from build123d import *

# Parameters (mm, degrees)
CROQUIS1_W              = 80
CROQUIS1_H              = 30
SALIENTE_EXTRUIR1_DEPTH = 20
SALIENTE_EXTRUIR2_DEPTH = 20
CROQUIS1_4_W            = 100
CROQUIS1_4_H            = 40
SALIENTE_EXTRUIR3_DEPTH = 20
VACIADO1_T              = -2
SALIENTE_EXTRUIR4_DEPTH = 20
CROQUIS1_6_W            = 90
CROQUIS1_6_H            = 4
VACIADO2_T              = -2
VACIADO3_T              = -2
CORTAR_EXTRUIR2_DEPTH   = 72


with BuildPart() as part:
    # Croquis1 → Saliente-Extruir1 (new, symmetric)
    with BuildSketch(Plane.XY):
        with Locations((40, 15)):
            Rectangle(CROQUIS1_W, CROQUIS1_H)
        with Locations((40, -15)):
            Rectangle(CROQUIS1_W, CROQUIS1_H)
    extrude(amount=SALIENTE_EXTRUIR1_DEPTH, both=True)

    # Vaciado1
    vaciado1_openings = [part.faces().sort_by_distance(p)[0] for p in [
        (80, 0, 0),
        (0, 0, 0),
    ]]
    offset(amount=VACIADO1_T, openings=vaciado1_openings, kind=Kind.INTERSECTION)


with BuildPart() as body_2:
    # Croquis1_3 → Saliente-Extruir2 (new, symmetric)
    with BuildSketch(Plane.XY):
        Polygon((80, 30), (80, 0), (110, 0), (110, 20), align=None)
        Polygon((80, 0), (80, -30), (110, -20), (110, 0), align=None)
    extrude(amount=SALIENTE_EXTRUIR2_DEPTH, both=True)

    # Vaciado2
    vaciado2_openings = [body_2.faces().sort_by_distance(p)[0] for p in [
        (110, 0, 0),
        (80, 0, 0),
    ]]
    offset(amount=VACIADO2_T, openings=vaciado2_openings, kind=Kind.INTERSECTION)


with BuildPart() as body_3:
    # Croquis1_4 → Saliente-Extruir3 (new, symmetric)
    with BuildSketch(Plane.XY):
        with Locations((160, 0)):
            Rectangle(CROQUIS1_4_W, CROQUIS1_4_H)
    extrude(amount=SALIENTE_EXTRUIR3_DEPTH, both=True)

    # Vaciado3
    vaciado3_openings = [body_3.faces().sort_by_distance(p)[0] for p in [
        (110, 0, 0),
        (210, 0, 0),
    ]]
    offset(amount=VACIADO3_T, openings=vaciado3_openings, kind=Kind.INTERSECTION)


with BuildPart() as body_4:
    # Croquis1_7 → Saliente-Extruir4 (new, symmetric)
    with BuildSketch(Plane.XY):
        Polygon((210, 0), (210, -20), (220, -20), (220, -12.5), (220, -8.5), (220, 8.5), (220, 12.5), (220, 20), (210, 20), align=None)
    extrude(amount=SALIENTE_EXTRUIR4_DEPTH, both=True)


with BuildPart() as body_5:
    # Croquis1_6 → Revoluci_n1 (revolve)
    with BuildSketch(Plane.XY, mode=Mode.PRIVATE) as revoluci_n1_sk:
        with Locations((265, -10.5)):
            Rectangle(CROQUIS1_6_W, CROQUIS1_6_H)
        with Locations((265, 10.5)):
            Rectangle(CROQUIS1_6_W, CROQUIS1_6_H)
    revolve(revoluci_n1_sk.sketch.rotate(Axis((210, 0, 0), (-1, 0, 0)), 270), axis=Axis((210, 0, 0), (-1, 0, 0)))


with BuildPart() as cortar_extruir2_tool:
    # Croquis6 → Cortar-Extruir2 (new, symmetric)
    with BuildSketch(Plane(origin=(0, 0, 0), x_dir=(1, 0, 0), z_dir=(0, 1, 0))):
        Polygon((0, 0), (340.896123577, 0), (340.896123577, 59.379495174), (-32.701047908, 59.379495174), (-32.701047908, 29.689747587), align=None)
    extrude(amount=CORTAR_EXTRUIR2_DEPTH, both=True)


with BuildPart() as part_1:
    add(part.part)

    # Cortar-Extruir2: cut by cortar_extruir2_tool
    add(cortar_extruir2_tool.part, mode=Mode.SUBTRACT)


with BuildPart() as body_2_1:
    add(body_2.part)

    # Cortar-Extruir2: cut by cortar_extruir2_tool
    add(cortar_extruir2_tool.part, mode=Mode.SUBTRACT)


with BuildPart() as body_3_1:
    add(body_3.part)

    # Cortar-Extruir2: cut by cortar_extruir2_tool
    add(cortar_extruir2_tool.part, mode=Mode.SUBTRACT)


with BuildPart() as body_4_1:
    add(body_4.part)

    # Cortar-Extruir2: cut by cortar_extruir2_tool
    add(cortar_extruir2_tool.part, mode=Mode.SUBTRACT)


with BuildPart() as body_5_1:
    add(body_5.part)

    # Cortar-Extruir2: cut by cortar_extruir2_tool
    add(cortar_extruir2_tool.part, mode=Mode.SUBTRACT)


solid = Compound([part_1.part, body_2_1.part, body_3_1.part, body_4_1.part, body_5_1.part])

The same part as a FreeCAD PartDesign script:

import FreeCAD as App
import Part
import Sketcher
from FreeCAD import Vector
Q = App.Units.Quantity


def faces_at(feature, points):
    """Names of the faces that lie closest to the given points."""
    faces = feature.Shape.Faces
    near = lambda p: min(range(len(faces)), key=lambda i: faces[i].distToShape(Part.Vertex(*p))[0])
    return sorted({f"Face{near(p) + 1}" for p in points})

doc = App.newDocument("Part")
body = doc.addObject("PartDesign::Body", "Body")

# Sketch on XY plane
sketch1 = body.newObject("Sketcher::SketchObject", "Sketch")
sketch1.AttachmentSupport = (doc.getObject("XY_Plane"), [""])
sketch1.MapMode = "FlatFace"
sketch1.addGeometry([
    Part.LineSegment(Vector(0, 30, 0), Vector(0, -30, 0)),
    Part.LineSegment(Vector(0, -30, 0), Vector(80, -30, 0)),
    Part.LineSegment(Vector(80, -30, 0), Vector(80, 30, 0)),
    Part.LineSegment(Vector(80, 30, 0), Vector(0, 30, 0)),
], False)
sketch1.addConstraint([
    Sketcher.Constraint("Coincident", 0, 2, 1, 1),
    Sketcher.Constraint("Coincident", 1, 2, 2, 1),
    Sketcher.Constraint("Coincident", 2, 2, 3, 1),
    Sketcher.Constraint("Coincident", 3, 2, 0, 1),
    Sketcher.Constraint("Vertical", 0),
    Sketcher.Constraint("Horizontal", 1),
    Sketcher.Constraint("Vertical", 2),
    Sketcher.Constraint("Horizontal", 3),
    Sketcher.Constraint("Symmetric", 0, 2, 3, 2, -1, 1),
    Sketcher.Constraint("DistanceX", 1, 1, 1, 2, Q("80 mm")),
    Sketcher.Constraint("DistanceY", 0, 2, 0, 1, Q("60 mm")),
])
pad1 = body.newObject("PartDesign::Pad", "Pad")
pad1.Profile = sketch1
pad1.Length = 40
pad1.Midplane = True
doc.recompute()

thickness = body.newObject("PartDesign::Thickness", "Thickness")
thickness.Base = (pad1, faces_at(pad1, [(80, 0, 0), (0, 0, 0)]))
thickness.Value = 2
thickness.Reversed = True
thickness.Join = "Intersection"
body2 = doc.addObject("PartDesign::Body", "Body001")

# Sketch on XY plane
sketch2 = body2.newObject("Sketcher::SketchObject", "Sketch001")
sketch2.AttachmentSupport = (doc.getObject("XY_Plane001"), [""])
sketch2.MapMode = "FlatFace"
sketch2.addGeometry([
    Part.LineSegment(Vector(80, 30, 0), Vector(80, -30, 0)),
    Part.LineSegment(Vector(80, -30, 0), Vector(110, -20, 0)),
    Part.LineSegment(Vector(110, -20, 0), Vector(110, 20, 0)),
    Part.LineSegment(Vector(110, 20, 0), Vector(80, 30, 0)),
], False)
sketch2.addConstraint([
    Sketcher.Constraint("Coincident", 0, 2, 1, 1),
    Sketcher.Constraint("Coincident", 1, 2, 2, 1),
    Sketcher.Constraint("Coincident", 2, 2, 3, 1),
    Sketcher.Constraint("Coincident", 3, 2, 0, 1),
    Sketcher.Constraint("Vertical", 0),
    Sketcher.Constraint("Vertical", 2),
    Sketcher.Constraint("Equal", 1, 3),
    Sketcher.Constraint("DistanceY", 0, 2, 0, 1, Q("60 mm")),
    Sketcher.Constraint("DistanceY", 2, 1, 2, 2, Q("40 mm")),
    Sketcher.Constraint("DistanceX", -1, 1, 0, 2, Q("80 mm")),
    Sketcher.Constraint("DistanceY", 0, 2, -1, 1, Q("30 mm")),
    Sketcher.Constraint("DistanceX", -1, 1, 1, 2, Q("110 mm")),
])
pad2 = body2.newObject("PartDesign::Pad", "Pad001")
pad2.Profile = sketch2
pad2.Length = 40
pad2.Midplane = True
doc.recompute()

thickness2 = body2.newObject("PartDesign::Thickness", "Thickness001")
thickness2.Base = (pad2, faces_at(pad2, [(110, 0, 0), (80, 0, 0)]))
thickness2.Value = 2
thickness2.Reversed = True
thickness2.Join = "Intersection"
body3 = doc.addObject("PartDesign::Body", "Body002")

# Sketch on XY plane
sketch3 = body3.newObject("Sketcher::SketchObject", "Sketch002")
sketch3.AttachmentSupport = (doc.getObject("XY_Plane002"), [""])
sketch3.MapMode = "FlatFace"
sketch3.addGeometry([
    Part.LineSegment(Vector(110, 20, 0), Vector(110, -20, 0)),
    Part.LineSegment(Vector(110, -20, 0), Vector(210, -20, 0)),
    Part.LineSegment(Vector(210, -20, 0), Vector(210, 20, 0)),
    Part.LineSegment(Vector(210, 20, 0), Vector(110, 20, 0)),
], False)
sketch3.addConstraint([
    Sketcher.Constraint("Coincident", 0, 2, 1, 1),
    Sketcher.Constraint("Coincident", 1, 2, 2, 1),
    Sketcher.Constraint("Coincident", 2, 2, 3, 1),
    Sketcher.Constraint("Coincident", 3, 2, 0, 1),
    Sketcher.Constraint("Vertical", 0),
    Sketcher.Constraint("Horizontal", 1),
    Sketcher.Constraint("Vertical", 2),
    Sketcher.Constraint("Horizontal", 3),
    Sketcher.Constraint("DistanceX", 1, 1, 1, 2, Q("100 mm")),
    Sketcher.Constraint("DistanceY", 0, 2, 0, 1, Q("40 mm")),
    Sketcher.Constraint("DistanceX", -1, 1, 0, 2, Q("110 mm")),
    Sketcher.Constraint("DistanceY", 0, 2, -1, 1, Q("20 mm")),
])
pad3 = body3.newObject("PartDesign::Pad", "Pad002")
pad3.Profile = sketch3
pad3.Length = 40
pad3.Midplane = True
doc.recompute()

thickness3 = body3.newObject("PartDesign::Thickness", "Thickness002")
thickness3.Base = (pad3, faces_at(pad3, [(110, 0, 0), (210, 0, 0)]))
thickness3.Value = 2
thickness3.Reversed = True
thickness3.Join = "Intersection"
body4 = doc.addObject("PartDesign::Body", "Body003")

# Sketch on XY plane
sketch4 = body4.newObject("Sketcher::SketchObject", "Sketch003")
sketch4.AttachmentSupport = (doc.getObject("XY_Plane003"), [""])
sketch4.MapMode = "FlatFace"
sketch4.addGeometry([
    Part.LineSegment(Vector(210, -20, 0), Vector(220, -20, 0)),
    Part.LineSegment(Vector(220, -20, 0), Vector(220, 20, 0)),
    Part.LineSegment(Vector(220, 20, 0), Vector(210, 20, 0)),
    Part.LineSegment(Vector(210, 20, 0), Vector(210, -20, 0)),
], False)
sketch4.addConstraint([
    Sketcher.Constraint("Coincident", 0, 2, 1, 1),
    Sketcher.Constraint("Coincident", 1, 2, 2, 1),
    Sketcher.Constraint("Coincident", 2, 2, 3, 1),
    Sketcher.Constraint("Coincident", 3, 2, 0, 1),
    Sketcher.Constraint("Horizontal", 0),
    Sketcher.Constraint("Vertical", 1),
    Sketcher.Constraint("Horizontal", 2),
    Sketcher.Constraint("Vertical", 3),
    Sketcher.Constraint("DistanceX", 0, 1, 0, 2, Q("10 mm")),
    Sketcher.Constraint("DistanceY", 1, 1, 1, 2, Q("40 mm")),
    Sketcher.Constraint("DistanceX", -1, 1, 0, 2, Q("220 mm")),
    Sketcher.Constraint("DistanceY", 0, 2, -1, 1, Q("20 mm")),
])
pad4 = body4.newObject("PartDesign::Pad", "Pad003")
pad4.Profile = sketch4
pad4.Length = 40
pad4.Midplane = True
body5 = doc.addObject("PartDesign::Body", "Body004")

# Sketch on XY plane
sketch5 = body5.newObject("Sketcher::SketchObject", "Sketch004")
sketch5.AttachmentSupport = (doc.getObject("XY_Plane004"), [""])
sketch5.MapMode = "FlatFace"
sketch5.addGeometry([
    Part.LineSegment(Vector(220, -8.5, 0), Vector(220, -12.5, 0)),  # 0
    Part.LineSegment(Vector(220, -12.5, 0), Vector(310, -12.5, 0)),  # 1
    Part.LineSegment(Vector(310, -12.5, 0), Vector(310, -8.5, 0)),  # 2
    Part.LineSegment(Vector(310, -8.5, 0), Vector(220, -8.5, 0)),  # 3
    Part.LineSegment(Vector(220, 12.5, 0), Vector(220, 8.5, 0)),  # 4
    Part.LineSegment(Vector(220, 8.5, 0), Vector(310, 8.5, 0)),  # 5
    Part.LineSegment(Vector(310, 8.5, 0), Vector(310, 12.5, 0)),  # 6
    Part.LineSegment(Vector(310, 12.5, 0), Vector(220, 12.5, 0)),  # 7
], False)
sketch5.addConstraint([
    Sketcher.Constraint("Coincident", 0, 2, 1, 1),
    Sketcher.Constraint("Coincident", 1, 2, 2, 1),
    Sketcher.Constraint("Coincident", 2, 2, 3, 1),
    Sketcher.Constraint("Coincident", 3, 2, 0, 1),
    Sketcher.Constraint("Coincident", 4, 2, 5, 1),
    Sketcher.Constraint("Coincident", 5, 2, 6, 1),
    Sketcher.Constraint("Coincident", 6, 2, 7, 1),
    Sketcher.Constraint("Coincident", 7, 2, 4, 1),
    Sketcher.Constraint("Vertical", 0),
    Sketcher.Constraint("Horizontal", 1),
    Sketcher.Constraint("Vertical", 2),
    Sketcher.Constraint("Horizontal", 3),
    Sketcher.Constraint("Vertical", 4),
    Sketcher.Constraint("Horizontal", 5),
    Sketcher.Constraint("Vertical", 6),
    Sketcher.Constraint("Horizontal", 7),
    Sketcher.Constraint("Symmetric", 3, 2, 4, 2, -1),
    Sketcher.Constraint("Symmetric", 1, 2, 6, 2, -1),
    Sketcher.Constraint("DistanceX", 1, 1, 1, 2, Q("90 mm")),
    Sketcher.Constraint("DistanceY", 0, 2, 0, 1, Q("4 mm")),
    Sketcher.Constraint("DistanceX", -1, 1, 0, 2, Q("220 mm")),
    Sketcher.Constraint("DistanceY", 3, 2, 4, 2, Q("17 mm")),
])
revolution = body5.newObject("PartDesign::Revolution", "Revolution")
revolution.Profile = sketch5
revolution.ReferenceAxis = (sketch5, ["H_Axis"])
revolution.Angle = 360
body6 = doc.addObject("PartDesign::Body", "Body005")

# Sketch on XZ plane
sketch6 = body6.newObject("Sketcher::SketchObject", "Sketch005")
sketch6.AttachmentSupport = (doc.getObject("XZ_Plane005"), [""])
sketch6.MapMode = "FlatFace"
sketch6.addGeometry([
    Part.LineSegment(Vector(0, 0, 0), Vector(341, 0, 0)),  # 0
    Part.LineSegment(Vector(341, 0, 0), Vector(341, -59, 0)),  # 1
    Part.LineSegment(Vector(341, -59, 0), Vector(-33, -59, 0)),  # 2
    Part.LineSegment(Vector(-33, -59, 0), Vector(-33, -30, 0)),  # 3
    Part.LineSegment(Vector(-33, -30, 0), Vector(0, 0, 0)),  # 4
], False)
sketch6.addConstraint([
    Sketcher.Constraint("Coincident", 0, 2, 1, 1),
    Sketcher.Constraint("Coincident", 1, 2, 2, 1),
    Sketcher.Constraint("Coincident", 2, 2, 3, 1),
    Sketcher.Constraint("Coincident", 3, 2, 4, 1),
    Sketcher.Constraint("Coincident", 4, 2, 0, 1),
    Sketcher.Constraint("Horizontal", 0),
    Sketcher.Constraint("Vertical", 1),
    Sketcher.Constraint("Horizontal", 2),
    Sketcher.Constraint("Vertical", 3),
    Sketcher.Constraint("Coincident", 4, 2, -1, 1),
    Sketcher.Constraint("DistanceX", 2, 2, 2, 1, Q("373.597171 mm")),
    Sketcher.Constraint("Distance", 4, Q("44.16831 mm")),
    Sketcher.Constraint("DistanceX", 0, 1, 0, 2, Q("340.896124 mm")),
    Sketcher.Constraint("DistanceY", 1, 2, 1, 1, Q("59.379495 mm")),
])
pad5 = body6.newObject("PartDesign::Pad", "Pad004")
pad5.Profile = sketch6
pad5.Length = 144
pad5.Midplane = True
doc.recompute()

body7 = doc.addObject("PartDesign::Body", "Body006")
body7.BaseFeature = body6
boolean = body.newObject("PartDesign::Boolean", "Boolean")
boolean.Type = "Cut"
boolean.addObjects([body7])
doc.recompute()

body8 = doc.addObject("PartDesign::Body", "Body007")
body8.BaseFeature = body6
boolean2 = body2.newObject("PartDesign::Boolean", "Boolean001")
boolean2.Type = "Cut"
boolean2.addObjects([body8])
doc.recompute()

body9 = doc.addObject("PartDesign::Body", "Body008")
body9.BaseFeature = body6
boolean3 = body3.newObject("PartDesign::Boolean", "Boolean002")
boolean3.Type = "Cut"
boolean3.addObjects([body9])
doc.recompute()

body10 = doc.addObject("PartDesign::Body", "Body009")
body10.BaseFeature = body6
boolean4 = body4.newObject("PartDesign::Boolean", "Boolean003")
boolean4.Type = "Cut"
boolean4.addObjects([body10])
doc.recompute()

boolean5 = body5.newObject("PartDesign::Boolean", "Boolean004")
boolean5.Type = "Cut"
boolean5.addObjects([body6])

doc.recompute()
